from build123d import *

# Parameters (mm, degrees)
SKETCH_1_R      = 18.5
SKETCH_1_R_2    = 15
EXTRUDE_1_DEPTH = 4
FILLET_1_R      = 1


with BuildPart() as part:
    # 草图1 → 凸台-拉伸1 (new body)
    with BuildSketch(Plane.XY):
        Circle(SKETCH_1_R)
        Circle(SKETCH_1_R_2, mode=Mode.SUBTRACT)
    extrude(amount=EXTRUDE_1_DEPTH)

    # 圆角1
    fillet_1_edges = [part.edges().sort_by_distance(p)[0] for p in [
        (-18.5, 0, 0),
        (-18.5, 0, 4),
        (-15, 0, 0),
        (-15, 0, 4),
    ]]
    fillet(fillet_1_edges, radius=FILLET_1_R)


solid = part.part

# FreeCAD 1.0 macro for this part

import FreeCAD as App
import Part
import Sketcher

V = App.Vector
Q = App.Units.Quantity


def edges_at(feature, points):
    """Names of the edges that pass closest to the given points."""
    edges = feature.Shape.Edges
    near = lambda p: min(range(len(edges)), key=lambda i: edges[i].distToShape(Part.Vertex(*p))[0])
    return sorted({f"Edge{near(p) + 1}" for p in points})

doc = App.newDocument("Part")
body = doc.addObject("PartDesign::Body", "Body")

sketch1 = doc.addObject("Sketcher::SketchObject", "Sketch")
body.addObject(sketch1)
sketch1.AttachmentSupport = (doc.XY_Plane, [""])
sketch1.MapMode = "FlatFace"
sketch1.addGeometry(Part.Circle(V(0, 0, 0), V(0, 0, 1), 18), False)
sketch1.addGeometry(Part.Circle(V(0, 0, 0), V(0, 0, 1), 15), False)
sketch1.addConstraint(Sketcher.Constraint("Coincident", 0, 3, -1, 1))
sketch1.addConstraint(Sketcher.Constraint("Coincident", 1, 3, -1, 1))
sketch1.addConstraint(Sketcher.Constraint("Diameter", 0, Q("37 mm")))
sketch1.addConstraint(Sketcher.Constraint("Diameter", 1, Q("30 mm")))
pad1 = doc.addObject("PartDesign::Pad", "Pad")
body.addObject(pad1)
pad1.Profile = sketch1
pad1.Length = 4
doc.recompute()

fillet = doc.addObject("PartDesign::Fillet", "Fillet")
body.addObject(fillet)
fillet.Base = (pad1, edges_at(pad1, [
    (-18.5, 0, 0),
    (-18.5, 0, 4),
    (-15, 0, 0),
    (-15, 0, 4),
]))
fillet.Radius = 1

doc.recompute()
